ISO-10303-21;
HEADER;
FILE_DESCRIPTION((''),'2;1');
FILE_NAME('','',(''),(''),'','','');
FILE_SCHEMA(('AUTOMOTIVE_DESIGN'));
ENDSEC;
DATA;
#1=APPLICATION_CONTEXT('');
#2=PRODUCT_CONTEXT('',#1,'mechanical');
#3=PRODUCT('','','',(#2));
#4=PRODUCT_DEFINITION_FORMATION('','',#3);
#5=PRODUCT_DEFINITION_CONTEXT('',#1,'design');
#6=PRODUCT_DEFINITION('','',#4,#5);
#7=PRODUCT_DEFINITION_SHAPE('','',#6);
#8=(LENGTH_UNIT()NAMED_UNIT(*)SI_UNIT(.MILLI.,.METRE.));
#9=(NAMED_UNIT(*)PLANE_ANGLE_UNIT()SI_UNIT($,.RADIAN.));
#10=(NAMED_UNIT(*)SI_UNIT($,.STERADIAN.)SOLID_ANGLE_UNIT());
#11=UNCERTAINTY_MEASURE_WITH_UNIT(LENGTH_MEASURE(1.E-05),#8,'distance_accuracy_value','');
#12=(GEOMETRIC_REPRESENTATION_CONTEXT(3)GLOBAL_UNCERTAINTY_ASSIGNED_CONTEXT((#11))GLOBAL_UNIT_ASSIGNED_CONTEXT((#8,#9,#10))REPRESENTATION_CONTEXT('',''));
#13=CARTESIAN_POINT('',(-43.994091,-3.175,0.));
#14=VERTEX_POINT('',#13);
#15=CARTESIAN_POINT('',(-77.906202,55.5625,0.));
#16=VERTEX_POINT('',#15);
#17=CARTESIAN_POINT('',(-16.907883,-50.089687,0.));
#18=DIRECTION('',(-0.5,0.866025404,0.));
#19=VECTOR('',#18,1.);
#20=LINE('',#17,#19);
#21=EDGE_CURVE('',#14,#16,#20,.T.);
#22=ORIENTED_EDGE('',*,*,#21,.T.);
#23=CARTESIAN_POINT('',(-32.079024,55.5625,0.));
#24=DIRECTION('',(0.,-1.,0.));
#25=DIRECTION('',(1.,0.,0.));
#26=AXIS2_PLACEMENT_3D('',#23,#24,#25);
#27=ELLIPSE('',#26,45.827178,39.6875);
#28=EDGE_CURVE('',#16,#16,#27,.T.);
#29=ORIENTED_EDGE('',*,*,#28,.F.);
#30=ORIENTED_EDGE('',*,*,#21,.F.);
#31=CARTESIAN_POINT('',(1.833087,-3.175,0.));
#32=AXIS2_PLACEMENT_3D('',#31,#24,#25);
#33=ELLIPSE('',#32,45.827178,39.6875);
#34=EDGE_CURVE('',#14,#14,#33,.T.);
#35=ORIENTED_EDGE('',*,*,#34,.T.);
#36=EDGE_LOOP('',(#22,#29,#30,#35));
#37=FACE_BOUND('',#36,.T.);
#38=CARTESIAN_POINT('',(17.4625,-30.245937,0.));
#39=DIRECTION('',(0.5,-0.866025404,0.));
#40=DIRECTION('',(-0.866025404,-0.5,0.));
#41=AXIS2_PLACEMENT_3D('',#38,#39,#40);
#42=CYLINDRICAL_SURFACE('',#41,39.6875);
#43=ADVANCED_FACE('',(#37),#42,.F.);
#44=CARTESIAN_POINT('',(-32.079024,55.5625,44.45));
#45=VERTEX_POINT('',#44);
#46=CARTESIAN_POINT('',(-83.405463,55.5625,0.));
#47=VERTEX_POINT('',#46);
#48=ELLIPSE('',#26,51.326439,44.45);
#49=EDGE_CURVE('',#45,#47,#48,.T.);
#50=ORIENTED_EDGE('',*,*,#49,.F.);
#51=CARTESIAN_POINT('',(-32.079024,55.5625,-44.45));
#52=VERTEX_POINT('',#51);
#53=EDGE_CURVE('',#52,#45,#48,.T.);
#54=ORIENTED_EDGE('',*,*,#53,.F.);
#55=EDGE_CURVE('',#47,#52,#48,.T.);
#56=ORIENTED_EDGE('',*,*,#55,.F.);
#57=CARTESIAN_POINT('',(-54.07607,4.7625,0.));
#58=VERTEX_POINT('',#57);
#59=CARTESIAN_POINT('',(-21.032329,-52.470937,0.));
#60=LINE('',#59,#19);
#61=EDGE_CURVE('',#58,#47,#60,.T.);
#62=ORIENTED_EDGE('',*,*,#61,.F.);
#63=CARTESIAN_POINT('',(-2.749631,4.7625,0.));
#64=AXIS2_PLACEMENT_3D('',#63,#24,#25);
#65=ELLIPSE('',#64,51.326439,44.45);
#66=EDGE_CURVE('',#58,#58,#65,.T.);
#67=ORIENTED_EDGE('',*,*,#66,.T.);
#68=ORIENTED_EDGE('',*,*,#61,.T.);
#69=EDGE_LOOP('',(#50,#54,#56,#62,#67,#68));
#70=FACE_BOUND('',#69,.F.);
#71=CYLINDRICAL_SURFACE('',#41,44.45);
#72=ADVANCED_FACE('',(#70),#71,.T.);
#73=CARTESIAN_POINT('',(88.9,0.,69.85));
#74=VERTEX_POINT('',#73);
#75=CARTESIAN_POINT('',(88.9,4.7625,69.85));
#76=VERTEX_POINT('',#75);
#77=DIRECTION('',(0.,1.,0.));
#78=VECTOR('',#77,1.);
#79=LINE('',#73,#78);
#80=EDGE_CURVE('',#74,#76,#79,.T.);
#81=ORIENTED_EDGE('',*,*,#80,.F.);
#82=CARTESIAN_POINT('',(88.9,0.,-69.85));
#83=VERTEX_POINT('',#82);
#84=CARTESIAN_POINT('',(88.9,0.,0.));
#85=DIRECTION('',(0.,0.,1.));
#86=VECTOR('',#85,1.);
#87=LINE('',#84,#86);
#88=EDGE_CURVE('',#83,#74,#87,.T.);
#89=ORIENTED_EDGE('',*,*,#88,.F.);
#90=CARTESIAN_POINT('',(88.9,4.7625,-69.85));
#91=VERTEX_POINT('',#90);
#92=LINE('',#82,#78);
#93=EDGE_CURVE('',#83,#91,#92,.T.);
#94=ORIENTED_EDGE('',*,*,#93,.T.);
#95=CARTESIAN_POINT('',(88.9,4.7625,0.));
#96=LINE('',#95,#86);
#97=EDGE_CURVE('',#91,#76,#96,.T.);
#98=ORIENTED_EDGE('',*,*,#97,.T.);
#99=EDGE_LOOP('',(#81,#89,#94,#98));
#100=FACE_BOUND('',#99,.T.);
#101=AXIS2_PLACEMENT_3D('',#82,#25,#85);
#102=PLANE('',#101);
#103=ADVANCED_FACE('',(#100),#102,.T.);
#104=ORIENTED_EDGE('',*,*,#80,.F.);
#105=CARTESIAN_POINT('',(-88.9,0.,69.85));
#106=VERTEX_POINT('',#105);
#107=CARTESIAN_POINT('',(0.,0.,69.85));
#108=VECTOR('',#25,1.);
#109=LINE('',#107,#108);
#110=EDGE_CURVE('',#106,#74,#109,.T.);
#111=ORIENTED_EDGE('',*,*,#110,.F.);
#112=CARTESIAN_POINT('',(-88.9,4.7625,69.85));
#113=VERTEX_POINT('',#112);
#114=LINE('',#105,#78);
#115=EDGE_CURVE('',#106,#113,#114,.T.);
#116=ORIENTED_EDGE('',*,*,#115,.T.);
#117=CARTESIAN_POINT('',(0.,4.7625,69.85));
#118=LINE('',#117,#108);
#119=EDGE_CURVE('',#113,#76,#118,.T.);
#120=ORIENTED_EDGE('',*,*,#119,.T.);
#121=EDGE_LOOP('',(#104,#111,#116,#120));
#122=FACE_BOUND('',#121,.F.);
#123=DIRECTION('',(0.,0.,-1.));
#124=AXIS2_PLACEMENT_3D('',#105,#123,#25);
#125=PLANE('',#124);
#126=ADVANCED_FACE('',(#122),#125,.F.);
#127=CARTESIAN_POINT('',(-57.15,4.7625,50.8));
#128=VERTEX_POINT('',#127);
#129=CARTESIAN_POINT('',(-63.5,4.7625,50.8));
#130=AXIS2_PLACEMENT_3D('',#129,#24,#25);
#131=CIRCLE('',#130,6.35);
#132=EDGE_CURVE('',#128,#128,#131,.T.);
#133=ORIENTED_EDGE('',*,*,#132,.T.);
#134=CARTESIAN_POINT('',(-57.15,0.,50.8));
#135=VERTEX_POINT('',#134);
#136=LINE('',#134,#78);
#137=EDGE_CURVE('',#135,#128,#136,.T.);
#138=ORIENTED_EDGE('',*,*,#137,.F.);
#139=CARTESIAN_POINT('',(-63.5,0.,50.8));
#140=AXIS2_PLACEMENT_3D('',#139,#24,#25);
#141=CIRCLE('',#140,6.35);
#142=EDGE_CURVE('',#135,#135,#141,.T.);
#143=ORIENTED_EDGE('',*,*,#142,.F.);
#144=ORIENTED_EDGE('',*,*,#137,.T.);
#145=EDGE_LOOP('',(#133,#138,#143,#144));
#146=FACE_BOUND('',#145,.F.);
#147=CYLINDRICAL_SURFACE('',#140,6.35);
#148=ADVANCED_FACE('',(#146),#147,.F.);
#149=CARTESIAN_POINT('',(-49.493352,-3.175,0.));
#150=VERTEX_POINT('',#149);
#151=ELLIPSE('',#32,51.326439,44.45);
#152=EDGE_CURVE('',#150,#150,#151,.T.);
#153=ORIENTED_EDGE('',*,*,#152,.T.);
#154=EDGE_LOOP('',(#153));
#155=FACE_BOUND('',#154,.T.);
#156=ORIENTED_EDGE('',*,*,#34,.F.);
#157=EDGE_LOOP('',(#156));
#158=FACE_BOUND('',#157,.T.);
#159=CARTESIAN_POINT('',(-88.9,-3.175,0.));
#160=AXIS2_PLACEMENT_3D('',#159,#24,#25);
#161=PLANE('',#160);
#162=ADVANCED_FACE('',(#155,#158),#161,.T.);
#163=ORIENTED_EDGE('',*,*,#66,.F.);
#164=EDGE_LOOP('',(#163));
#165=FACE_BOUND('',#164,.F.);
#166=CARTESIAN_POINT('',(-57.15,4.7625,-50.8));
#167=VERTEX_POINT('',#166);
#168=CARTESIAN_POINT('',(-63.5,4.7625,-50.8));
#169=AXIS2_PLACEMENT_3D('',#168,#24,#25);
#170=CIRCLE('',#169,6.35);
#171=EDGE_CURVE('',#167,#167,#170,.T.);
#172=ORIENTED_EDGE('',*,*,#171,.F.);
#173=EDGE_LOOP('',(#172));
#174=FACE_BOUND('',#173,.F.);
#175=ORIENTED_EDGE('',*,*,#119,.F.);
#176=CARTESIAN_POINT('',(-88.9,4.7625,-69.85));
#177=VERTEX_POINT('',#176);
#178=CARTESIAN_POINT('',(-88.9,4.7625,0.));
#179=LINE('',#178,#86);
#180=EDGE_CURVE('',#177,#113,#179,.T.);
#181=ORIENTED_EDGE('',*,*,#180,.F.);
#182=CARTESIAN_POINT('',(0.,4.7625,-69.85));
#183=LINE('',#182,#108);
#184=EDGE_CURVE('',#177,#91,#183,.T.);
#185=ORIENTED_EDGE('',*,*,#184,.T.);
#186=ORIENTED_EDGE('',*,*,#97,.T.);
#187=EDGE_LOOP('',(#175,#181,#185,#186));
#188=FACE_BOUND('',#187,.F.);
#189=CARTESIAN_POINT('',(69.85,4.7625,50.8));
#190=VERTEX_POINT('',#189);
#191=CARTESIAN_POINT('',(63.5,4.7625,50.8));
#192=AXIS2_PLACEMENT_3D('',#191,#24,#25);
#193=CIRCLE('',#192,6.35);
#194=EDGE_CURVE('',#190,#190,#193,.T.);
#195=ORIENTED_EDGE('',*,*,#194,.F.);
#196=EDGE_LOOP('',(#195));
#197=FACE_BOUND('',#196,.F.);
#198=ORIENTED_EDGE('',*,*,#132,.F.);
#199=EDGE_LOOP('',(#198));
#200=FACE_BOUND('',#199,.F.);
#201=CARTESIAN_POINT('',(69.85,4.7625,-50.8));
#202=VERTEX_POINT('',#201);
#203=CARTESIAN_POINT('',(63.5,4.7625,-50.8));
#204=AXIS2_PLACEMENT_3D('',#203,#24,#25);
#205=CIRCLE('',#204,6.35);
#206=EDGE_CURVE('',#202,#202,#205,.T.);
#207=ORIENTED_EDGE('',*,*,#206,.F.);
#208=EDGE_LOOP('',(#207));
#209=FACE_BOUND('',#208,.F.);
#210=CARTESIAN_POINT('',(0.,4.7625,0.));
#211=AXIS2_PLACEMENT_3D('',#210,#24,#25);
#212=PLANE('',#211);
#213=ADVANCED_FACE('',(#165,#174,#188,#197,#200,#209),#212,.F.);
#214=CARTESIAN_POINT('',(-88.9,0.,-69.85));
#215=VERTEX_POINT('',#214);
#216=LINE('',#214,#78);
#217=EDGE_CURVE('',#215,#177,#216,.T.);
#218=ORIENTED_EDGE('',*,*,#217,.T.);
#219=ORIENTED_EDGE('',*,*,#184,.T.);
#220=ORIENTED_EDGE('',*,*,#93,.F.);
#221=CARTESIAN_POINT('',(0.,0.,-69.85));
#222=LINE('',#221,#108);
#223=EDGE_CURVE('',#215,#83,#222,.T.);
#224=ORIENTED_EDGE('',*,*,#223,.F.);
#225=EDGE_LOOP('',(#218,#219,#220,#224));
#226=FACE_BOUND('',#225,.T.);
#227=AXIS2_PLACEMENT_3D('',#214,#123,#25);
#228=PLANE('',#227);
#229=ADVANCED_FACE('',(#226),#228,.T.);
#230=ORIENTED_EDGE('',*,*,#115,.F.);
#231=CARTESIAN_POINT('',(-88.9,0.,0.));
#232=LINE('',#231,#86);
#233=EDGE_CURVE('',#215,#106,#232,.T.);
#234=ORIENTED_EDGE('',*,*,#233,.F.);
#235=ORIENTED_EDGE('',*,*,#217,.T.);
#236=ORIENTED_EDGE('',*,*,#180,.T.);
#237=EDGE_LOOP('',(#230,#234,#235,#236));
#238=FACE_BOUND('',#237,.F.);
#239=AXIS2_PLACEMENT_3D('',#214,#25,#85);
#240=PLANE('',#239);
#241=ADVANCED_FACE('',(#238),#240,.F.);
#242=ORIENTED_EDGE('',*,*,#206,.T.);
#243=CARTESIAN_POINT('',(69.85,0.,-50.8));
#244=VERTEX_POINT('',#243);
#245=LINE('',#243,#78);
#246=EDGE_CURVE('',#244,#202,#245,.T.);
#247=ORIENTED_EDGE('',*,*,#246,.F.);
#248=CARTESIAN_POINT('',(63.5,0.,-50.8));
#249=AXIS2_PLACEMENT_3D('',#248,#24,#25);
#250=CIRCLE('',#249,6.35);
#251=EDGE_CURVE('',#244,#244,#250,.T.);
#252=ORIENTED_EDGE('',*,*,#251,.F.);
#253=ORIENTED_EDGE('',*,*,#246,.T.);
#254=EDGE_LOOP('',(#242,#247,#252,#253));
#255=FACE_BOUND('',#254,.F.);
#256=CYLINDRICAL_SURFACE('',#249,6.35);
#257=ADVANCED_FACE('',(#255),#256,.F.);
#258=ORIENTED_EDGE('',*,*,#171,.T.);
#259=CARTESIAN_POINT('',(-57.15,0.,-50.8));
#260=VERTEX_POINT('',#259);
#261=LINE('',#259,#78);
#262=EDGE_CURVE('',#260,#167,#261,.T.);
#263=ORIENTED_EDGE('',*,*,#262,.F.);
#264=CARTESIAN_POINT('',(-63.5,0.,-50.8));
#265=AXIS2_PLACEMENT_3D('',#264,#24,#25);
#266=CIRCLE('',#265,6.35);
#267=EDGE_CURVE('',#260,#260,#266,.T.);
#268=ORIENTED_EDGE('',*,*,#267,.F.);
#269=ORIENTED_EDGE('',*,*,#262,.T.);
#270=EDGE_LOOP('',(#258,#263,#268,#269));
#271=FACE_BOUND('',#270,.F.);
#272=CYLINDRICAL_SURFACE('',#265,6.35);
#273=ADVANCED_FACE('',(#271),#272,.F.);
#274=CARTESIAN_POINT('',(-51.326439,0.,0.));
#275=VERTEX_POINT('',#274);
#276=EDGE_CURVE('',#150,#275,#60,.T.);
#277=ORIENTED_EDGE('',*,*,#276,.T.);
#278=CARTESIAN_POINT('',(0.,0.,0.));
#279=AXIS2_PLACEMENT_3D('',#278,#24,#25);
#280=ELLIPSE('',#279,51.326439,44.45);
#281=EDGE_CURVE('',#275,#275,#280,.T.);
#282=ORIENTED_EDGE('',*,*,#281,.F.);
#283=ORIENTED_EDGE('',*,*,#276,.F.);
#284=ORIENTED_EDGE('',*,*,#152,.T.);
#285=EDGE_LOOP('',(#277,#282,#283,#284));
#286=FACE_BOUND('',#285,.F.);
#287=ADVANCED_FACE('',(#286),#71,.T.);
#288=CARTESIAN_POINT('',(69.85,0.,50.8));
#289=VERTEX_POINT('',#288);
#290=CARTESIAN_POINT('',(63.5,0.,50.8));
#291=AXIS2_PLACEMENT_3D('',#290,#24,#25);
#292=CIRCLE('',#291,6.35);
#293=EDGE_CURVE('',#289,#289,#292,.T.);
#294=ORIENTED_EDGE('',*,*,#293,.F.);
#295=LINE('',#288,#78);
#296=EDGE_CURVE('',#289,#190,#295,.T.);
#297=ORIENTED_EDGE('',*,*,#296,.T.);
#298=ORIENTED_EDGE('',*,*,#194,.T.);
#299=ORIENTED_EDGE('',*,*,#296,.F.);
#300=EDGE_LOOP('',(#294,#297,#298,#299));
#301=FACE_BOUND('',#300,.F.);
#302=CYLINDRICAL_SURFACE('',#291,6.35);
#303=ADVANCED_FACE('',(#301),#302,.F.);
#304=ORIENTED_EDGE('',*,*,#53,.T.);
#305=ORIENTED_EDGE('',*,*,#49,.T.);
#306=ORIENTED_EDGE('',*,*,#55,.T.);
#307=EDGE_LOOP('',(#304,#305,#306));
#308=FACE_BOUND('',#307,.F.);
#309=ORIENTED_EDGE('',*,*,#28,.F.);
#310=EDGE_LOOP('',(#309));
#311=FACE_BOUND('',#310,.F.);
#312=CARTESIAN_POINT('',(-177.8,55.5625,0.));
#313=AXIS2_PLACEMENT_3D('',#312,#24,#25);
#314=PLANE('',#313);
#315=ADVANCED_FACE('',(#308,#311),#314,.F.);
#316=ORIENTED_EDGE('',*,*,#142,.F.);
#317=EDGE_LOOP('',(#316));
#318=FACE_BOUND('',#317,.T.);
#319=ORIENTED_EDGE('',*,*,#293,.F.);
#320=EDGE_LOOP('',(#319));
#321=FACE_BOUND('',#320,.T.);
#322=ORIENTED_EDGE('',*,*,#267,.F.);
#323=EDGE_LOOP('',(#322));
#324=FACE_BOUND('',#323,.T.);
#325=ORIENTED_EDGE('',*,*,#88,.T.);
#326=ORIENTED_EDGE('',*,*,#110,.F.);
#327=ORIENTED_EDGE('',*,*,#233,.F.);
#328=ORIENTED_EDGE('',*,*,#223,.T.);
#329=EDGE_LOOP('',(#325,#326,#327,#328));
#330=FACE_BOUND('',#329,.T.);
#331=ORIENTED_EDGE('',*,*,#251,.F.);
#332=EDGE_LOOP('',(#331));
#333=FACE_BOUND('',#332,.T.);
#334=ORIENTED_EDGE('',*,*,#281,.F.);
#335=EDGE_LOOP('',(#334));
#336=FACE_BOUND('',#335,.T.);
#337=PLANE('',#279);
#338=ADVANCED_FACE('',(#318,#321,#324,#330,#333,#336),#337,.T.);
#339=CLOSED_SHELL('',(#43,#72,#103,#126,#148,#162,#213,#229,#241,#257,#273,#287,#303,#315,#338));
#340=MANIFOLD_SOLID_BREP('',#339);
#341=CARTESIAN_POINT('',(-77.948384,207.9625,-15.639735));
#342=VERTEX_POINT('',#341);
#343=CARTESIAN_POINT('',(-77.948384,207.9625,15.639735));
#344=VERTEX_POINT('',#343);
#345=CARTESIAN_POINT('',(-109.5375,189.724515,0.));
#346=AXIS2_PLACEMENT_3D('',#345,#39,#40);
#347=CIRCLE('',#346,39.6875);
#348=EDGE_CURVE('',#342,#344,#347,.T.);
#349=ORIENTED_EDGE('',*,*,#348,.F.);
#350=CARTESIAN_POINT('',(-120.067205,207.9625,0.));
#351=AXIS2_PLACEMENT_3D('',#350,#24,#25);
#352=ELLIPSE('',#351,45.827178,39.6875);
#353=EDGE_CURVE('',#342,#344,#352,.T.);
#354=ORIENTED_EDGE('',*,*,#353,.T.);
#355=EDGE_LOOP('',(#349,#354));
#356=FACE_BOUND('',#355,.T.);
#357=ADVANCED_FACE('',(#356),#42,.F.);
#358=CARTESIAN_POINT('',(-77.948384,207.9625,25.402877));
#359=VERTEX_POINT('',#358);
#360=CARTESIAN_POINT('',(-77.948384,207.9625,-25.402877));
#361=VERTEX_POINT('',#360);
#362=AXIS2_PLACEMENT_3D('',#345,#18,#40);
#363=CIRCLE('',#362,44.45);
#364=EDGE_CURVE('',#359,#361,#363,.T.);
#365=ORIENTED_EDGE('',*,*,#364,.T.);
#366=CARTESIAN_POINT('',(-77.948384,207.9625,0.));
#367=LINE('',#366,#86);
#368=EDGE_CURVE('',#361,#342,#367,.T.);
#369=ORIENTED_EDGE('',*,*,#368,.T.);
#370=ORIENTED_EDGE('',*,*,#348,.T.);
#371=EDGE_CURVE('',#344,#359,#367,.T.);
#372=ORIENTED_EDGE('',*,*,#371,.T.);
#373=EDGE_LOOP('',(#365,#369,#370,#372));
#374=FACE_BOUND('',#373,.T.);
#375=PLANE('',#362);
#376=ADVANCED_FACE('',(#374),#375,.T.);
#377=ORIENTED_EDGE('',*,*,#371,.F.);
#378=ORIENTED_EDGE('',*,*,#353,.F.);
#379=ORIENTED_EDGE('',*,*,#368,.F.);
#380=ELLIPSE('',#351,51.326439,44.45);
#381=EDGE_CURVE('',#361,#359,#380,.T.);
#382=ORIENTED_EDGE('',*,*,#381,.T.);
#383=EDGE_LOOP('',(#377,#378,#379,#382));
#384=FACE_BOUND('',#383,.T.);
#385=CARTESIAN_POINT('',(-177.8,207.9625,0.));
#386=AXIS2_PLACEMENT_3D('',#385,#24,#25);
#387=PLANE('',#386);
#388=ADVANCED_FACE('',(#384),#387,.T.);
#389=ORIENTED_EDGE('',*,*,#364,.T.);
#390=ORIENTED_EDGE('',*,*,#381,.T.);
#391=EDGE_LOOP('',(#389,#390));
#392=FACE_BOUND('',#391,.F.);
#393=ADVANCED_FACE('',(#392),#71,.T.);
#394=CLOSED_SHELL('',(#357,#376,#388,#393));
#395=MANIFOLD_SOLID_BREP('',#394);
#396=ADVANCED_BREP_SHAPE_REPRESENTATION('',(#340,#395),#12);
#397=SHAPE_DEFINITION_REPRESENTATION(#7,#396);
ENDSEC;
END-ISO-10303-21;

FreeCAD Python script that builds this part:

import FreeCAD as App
import Part
import Sketcher

V = App.Vector
Q = App.Units.Quantity


def add_polygon(sketch, points):
    """Adds a closed chain of lines whose ends are joined by coincident constraints."""
    first, n = sketch.GeometryCount, len(points)
    for a, b in zip(points, points[1:] + points[:1]):
        sketch.addGeometry(Part.LineSegment(App.Vector(*a, 0), App.Vector(*b, 0)), False)
    for i in range(n):
        sketch.addConstraint(Sketcher.Constraint("Coincident", first + i, 2, first + (i + 1) % n, 1))

doc = App.newDocument("Part")
params = doc.addObject("Spreadsheet::Sheet", "Params")
for row, (alias, value) in enumerate([
    ("sketch1_width", "7 in"),
    ("sketch1_height", "5.5 in"),
    ("pad1_length", "0.1875 in"),
    ("sketch2_diameter", "3.5 in"),
    ("pad2_length", "10 in"),
    ("sketch3_diameter", "3.125 in"),
    ("sketch4_width", "7 in"),
    ("sketch4_height", "3 in"),
    ("pocket2_length", "4 in"),
    ("sketch5_diameter", "0.5 in"),
    ("sketch6_height", "6 in"),
    ("sketch6_width", "10.5 in"),
    ("pocket4_length", "3.5 in"),
], start=1):
    params.set(f"A{row}", alias)
    params.set(f"B{row}", "=" + value)
    params.setAlias(f"B{row}", alias)

body = doc.addObject("PartDesign::Body", "Body")
body.AllowCompound = True

# Sketch on XZ plane
sketch1 = body.newObject("Sketcher::SketchObject", "Sketch")
sketch1.AttachmentSupport = (doc.getObject("XZ_Plane"), [""])
sketch1.MapMode = "FlatFace"
add_polygon(sketch1, [(-89, 70), (-89, -70), (89, -70), (89, 70)])  # lines 0-3
sketch1.addConstraint([
    Sketcher.Constraint("Vertical", 0),
    Sketcher.Constraint("Horizontal", 1),
    Sketcher.Constraint("Vertical", 2),
    Sketcher.Constraint("Horizontal", 3),
    Sketcher.Constraint("Symmetric", 0, 2, 2, 2, -1, 1),
    Sketcher.Constraint("DistanceX", 1, 1, 1, 2, Q("7 in")),
    Sketcher.Constraint("DistanceY", 0, 2, 0, 1, Q("5.5 in")),
])
sketch1.setExpression("Constraints[9]", "Params.sketch1_width")
sketch1.setExpression("Constraints[10]", "Params.sketch1_height")
pad1 = body.newObject("PartDesign::Pad", "Pad")
pad1.Profile = sketch1
pad1.setExpression("Length", "Params.pad1_length")
pad1.Reversed = True

# Sketch on an angled plane
sketch2 = body.newObject("Sketcher::SketchObject", "Sketch001")
sketch2.Placement = App.Placement(V(17.4625, -30.245937, 0), App.Rotation(V(-0.866025404, -0.5, 0), V(0, 0, 1), V(-0.5, 0.866025404, 0), "ZXY"))
sketch2.addGeometry(Part.Circle(V(0, 0, 0), V(0, 0, 1), 44), False)
sketch2.addConstraint([
    Sketcher.Constraint("Coincident", 0, 3, -1, 1),
    Sketcher.Constraint("Diameter", 0, Q("3.5 in")),
])
sketch2.setExpression("Constraints[1]", "Params.sketch2_diameter")
pad2 = body.newObject("PartDesign::Pad", "Pad001")
pad2.Profile = sketch2
pad2.setExpression("Length", "Params.pad2_length")

# Sketch on an angled plane
sketch3 = body.newObject("Sketcher::SketchObject", "Sketch002")
sketch3.Placement = App.Placement(V(17.4625, -30.245937, 0), App.Rotation(V(-0.866025404, -0.5, 0), V(0, 0, 1), V(-0.5, 0.866025404, 0), "ZXY"))
sketch3.addGeometry(Part.Circle(V(0, 0, 0), V(0, 0, 1), 40), False)
sketch3.addConstraint([
    Sketcher.Constraint("Coincident", 0, 3, -1, 1),
    Sketcher.Constraint("Diameter", 0, Q("3.125 in")),
])
sketch3.setExpression("Constraints[1]", "Params.sketch3_diameter")
pocket1 = body.newObject("PartDesign::Pocket", "Pocket")
pocket1.Profile = sketch3
pocket1.Type = "ThroughAll"
pocket1.Reversed = True

# Sketch on XY plane
sketch4 = body.newObject("Sketcher::SketchObject", "Sketch003")
sketch4.AttachmentSupport = (doc.getObject("XY_Plane"), [""])
sketch4.MapMode = "FlatFace"
add_polygon(sketch4, [(-89, -3), (-89, -79), (89, -79), (89, -3)])  # lines 0-3
sketch4.addConstraint([
    Sketcher.Constraint("Vertical", 0),
    Sketcher.Constraint("Horizontal", 1),
    Sketcher.Constraint("Vertical", 2),
    Sketcher.Constraint("Horizontal", 3),
    Sketcher.Constraint("DistanceX", 1, 1, 1, 2, Q("7 in")),
    Sketcher.Constraint("DistanceY", 0, 2, 0, 1, Q("3 in")),
    Sketcher.Constraint("DistanceX", 0, 2, -1, 1, Q("3.5 in")),
    Sketcher.Constraint("DistanceY", 0, 2, -1, 1, Q("3.125 in")),
])
sketch4.setExpression("Constraints[8]", "Params.sketch4_width")
sketch4.setExpression("Constraints[9]", "Params.sketch4_height")
pocket2 = body.newObject("PartDesign::Pocket", "Pocket001")
pocket2.Profile = sketch4
pocket2.setExpression("Length", "Params.pocket2_length")
pocket2.Midplane = True

# Sketch on XZ plane
sketch5 = body.newObject("Sketcher::SketchObject", "Sketch004")
sketch5.AttachmentSupport = (doc.getObject("XZ_Plane"), [""])
sketch5.MapMode = "FlatFace"
sketch5.addGeometry([
    Part.Circle(V(-64, 51, 0), V(0, 0, 1), 6),
    Part.Circle(V(64, 51, 0), V(0, 0, 1), 6),
    Part.Circle(V(-64, -51, 0), V(0, 0, 1), 6),
    Part.Circle(V(64, -51, 0), V(0, 0, 1), 6),
], False)
sketch5.addConstraint([
    Sketcher.Constraint("Equal", 0, 1),
    Sketcher.Constraint("Equal", 1, 2),
    Sketcher.Constraint("Equal", 2, 3),
    Sketcher.Constraint("Symmetric", 1, 3, 2, 3, -1, 1),
    Sketcher.Constraint("Symmetric", 0, 3, 3, 3, -1, 1),
    Sketcher.Constraint("Symmetric", 0, 3, 1, 3, -2),
    Sketcher.Constraint("Diameter", 0, Q("0.5 in")),
    Sketcher.Constraint("DistanceY", -1, 1, 0, 3, Q("2 in")),
    Sketcher.Constraint("DistanceX", 0, 3, 1, 3, Q("5 in")),
])
sketch5.setExpression("Constraints[6]", "Params.sketch5_diameter")
pocket3 = body.newObject("PartDesign::Pocket", "Pocket002")
pocket3.Profile = sketch5
pocket3.Type = "ThroughAll"

# Sketch on XY plane
sketch6 = body.newObject("Sketcher::SketchObject", "Sketch005")
sketch6.AttachmentSupport = (doc.getObject("XY_Plane"), [""])
sketch6.MapMode = "FlatFace"
add_polygon(sketch6, [(-178, 208), (-178, 56), (89, 56), (89, 208)])  # lines 0-3
sketch6.addConstraint([
    Sketcher.Constraint("Vertical", 0),
    Sketcher.Constraint("Horizontal", 1),
    Sketcher.Constraint("Vertical", 2),
    Sketcher.Constraint("Horizontal", 3),
    Sketcher.Constraint("DistanceY", 0, 2, 0, 1, Q("6 in")),
    Sketcher.Constraint("DistanceX", 1, 1, 1, 2, Q("10.5 in")),
    Sketcher.Constraint("DistanceX", 0, 2, -1, 1, Q("7 in")),
    Sketcher.Constraint("DistanceY", -1, 1, 0, 2, Q("2.1875 in")),
])
sketch6.setExpression("Constraints[8]", "Params.sketch6_height")
sketch6.setExpression("Constraints[9]", "Params.sketch6_width")
pocket4 = body.newObject("PartDesign::Pocket", "Pocket003")
pocket4.Profile = sketch6
pocket4.setExpression("Length", "Params.pocket4_length")
pocket4.Midplane = True

doc.recompute()
